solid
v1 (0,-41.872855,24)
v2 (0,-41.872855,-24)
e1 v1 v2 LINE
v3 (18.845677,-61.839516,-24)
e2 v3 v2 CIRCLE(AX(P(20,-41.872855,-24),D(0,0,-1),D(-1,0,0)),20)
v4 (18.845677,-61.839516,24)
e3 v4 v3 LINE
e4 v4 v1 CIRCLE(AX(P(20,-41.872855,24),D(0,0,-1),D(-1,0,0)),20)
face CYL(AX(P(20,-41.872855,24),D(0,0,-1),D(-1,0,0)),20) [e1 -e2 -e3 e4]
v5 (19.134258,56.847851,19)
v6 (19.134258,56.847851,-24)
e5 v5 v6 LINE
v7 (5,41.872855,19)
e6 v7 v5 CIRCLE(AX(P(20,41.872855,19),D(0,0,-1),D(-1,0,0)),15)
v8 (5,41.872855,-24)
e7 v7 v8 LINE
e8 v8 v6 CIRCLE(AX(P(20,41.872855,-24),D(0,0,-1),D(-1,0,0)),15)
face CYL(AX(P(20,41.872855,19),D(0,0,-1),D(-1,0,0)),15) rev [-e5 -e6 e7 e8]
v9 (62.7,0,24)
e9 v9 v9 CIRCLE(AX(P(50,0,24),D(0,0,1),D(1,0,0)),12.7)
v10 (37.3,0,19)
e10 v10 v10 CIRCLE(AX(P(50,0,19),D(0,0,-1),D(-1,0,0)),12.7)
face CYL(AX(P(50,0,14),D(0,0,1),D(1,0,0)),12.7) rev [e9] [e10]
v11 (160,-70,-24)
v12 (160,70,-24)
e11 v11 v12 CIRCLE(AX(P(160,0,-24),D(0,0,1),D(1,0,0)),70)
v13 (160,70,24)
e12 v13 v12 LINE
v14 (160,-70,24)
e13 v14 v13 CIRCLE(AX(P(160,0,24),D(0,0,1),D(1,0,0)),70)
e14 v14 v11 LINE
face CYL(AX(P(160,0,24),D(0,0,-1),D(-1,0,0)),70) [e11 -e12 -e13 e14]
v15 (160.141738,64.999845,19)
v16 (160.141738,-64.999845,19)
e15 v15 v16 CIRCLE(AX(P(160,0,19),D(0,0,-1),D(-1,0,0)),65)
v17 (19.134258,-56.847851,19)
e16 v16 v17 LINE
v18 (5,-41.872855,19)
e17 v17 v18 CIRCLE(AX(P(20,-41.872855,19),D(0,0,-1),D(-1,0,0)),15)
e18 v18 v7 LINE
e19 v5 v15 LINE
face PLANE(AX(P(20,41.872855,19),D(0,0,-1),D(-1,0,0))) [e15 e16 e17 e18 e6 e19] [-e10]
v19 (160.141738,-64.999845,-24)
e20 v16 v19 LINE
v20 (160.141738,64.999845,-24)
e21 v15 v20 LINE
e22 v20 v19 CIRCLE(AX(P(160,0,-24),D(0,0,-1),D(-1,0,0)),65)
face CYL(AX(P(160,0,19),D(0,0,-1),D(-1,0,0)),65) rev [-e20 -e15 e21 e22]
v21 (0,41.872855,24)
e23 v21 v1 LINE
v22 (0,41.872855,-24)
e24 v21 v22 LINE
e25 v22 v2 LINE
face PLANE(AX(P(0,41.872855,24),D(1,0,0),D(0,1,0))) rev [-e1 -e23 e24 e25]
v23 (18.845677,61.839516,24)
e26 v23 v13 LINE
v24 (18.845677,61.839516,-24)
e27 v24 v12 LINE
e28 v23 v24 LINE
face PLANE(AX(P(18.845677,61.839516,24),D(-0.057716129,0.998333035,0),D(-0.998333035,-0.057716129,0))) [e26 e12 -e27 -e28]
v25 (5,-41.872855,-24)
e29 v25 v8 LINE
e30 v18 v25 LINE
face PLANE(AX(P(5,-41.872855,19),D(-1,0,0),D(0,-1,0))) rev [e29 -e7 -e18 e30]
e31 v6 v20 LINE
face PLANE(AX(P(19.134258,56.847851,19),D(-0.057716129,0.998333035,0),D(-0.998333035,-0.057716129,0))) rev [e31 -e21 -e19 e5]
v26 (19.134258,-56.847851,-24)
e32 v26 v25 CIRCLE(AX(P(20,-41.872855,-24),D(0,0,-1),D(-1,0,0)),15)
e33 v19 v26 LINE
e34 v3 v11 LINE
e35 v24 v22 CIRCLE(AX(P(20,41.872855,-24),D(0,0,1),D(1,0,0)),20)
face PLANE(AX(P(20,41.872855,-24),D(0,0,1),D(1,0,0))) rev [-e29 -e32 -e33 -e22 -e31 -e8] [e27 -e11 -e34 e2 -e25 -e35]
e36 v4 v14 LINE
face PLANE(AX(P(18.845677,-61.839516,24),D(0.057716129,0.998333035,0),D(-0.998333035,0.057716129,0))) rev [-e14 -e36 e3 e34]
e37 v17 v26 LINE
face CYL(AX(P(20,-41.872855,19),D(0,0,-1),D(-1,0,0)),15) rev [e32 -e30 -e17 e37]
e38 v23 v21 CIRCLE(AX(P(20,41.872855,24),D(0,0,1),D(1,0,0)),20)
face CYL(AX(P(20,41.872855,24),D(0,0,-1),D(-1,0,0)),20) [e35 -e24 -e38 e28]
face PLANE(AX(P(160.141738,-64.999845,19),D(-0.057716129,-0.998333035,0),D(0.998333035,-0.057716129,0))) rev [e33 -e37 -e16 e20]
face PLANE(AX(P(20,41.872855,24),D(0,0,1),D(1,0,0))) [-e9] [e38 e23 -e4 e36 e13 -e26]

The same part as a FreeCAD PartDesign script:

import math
import FreeCAD as App
import Part
import Sketcher
from FreeCAD import Vector

doc = App.newDocument("Part")
params = doc.addObject("Spreadsheet::Sheet", "Params")
for row, (alias, value) in enumerate([
    ("sketch1_radius", "20 mm"),
    ("sketch1_radius2", "70 mm"),
    ("pad1_length", "48 mm"),
    ("sketch2_radius", "65 mm"),
    ("sketch2_radius2", "15 mm"),
    ("pocket1_length", "43 mm"),
    ("sketch3_diameter", "25.4 mm"),
    ("pocket2_length", "10 mm"),
], start=1):
    params.set(f"A{row}", alias)
    params.set(f"B{row}", "=" + value)
    params.setAlias(f"B{row}", alias)

body = doc.addObject("PartDesign::Body", "Body")

# Sketch on XY plane
sketch1 = doc.addObject("Sketcher::SketchObject", "Sketch")
body.addObject(sketch1)
sketch1.AttachmentSupport = (doc.XY_Plane, [""])
sketch1.MapMode = "FlatFace"
sketch1.addGeometry([
    Part.LineSegment(Vector(0, 42, 0), Vector(0, -42, 0)),  # 0
    Part.ArcOfCircle(Part.Circle(Vector(20, -42, 0), Vector(0, 0, 1), 20), math.radians(180), math.radians(267)),  # 1
    Part.LineSegment(Vector(19, -62, 0), Vector(160, -70, 0)),  # 2
    Part.ArcOfCircle(Part.Circle(Vector(160, 0, 0), Vector(0, 0, 1), 70), math.radians(-90), math.radians(90)),  # 3
    Part.LineSegment(Vector(160, 70, 0), Vector(19, 62, 0)),  # 4
    Part.ArcOfCircle(Part.Circle(Vector(20, 42, 0), Vector(0, 0, 1), 20), math.radians(93), math.radians(180)),  # 5
], False)
sketch1.addConstraint([
    Sketcher.Constraint("Tangent", 0, 2, 1, 1),
    Sketcher.Constraint("Tangent", 1, 2, 2, 1),
    Sketcher.Constraint("Coincident", 2, 2, 3, 1),
    Sketcher.Constraint("Coincident", 3, 2, 4, 1),
    Sketcher.Constraint("Tangent", 4, 2, 5, 1),
    Sketcher.Constraint("Tangent", 5, 2, 0, 1),
    Sketcher.Constraint("Vertical", 0),
    Sketcher.Constraint("Equal", 1, 5),
    Sketcher.Constraint("Symmetric", 0, 2, 5, 2, -1, 1),
    Sketcher.Constraint("Symmetric", 2, 2, 3, 2, -1),
    Sketcher.Constraint("Vertical", 3, 3, 2, 2),
    Sketcher.Constraint("Radius", 1, 20.0),
    Sketcher.Constraint("Radius", 3, 70.0),
    Sketcher.Constraint("DistanceX", -1, 1, 3, 3, 160.0),
    Sketcher.Constraint("DistanceY", 0, 2, 0, 1, 83.74571),
])
sketch1.setExpression("Constraints[11]", "Params.sketch1_radius")
sketch1.setExpression("Constraints[12]", "Params.sketch1_radius2")
pad1 = doc.addObject("PartDesign::Pad", "Pad")
body.addObject(pad1)
pad1.Profile = sketch1
pad1.setExpression("Length", "Params.pad1_length")
pad1.Midplane = True

# Sketch on XY plane
sketch2 = doc.addObject("Sketcher::SketchObject", "Sketch001")
body.addObject(sketch2)
sketch2.AttachmentSupport = (doc.XY_Plane, [""])
sketch2.MapMode = "FlatFace"
sketch2.AttachmentOffset = App.Placement(Vector(0, 0, -24), App.Rotation())
sketch2.addGeometry([
    Part.LineSegment(Vector(19, 57, 0), Vector(160, 65, 0)),  # 0
    Part.ArcOfCircle(Part.Circle(Vector(160, 0, 0), Vector(0, 0, 1), 65), math.radians(-90), math.radians(90)),  # 1
    Part.LineSegment(Vector(160, -65, 0), Vector(19, -57, 0)),  # 2
    Part.ArcOfCircle(Part.Circle(Vector(20, -42, 0), Vector(0, 0, 1), 15), math.radians(180), math.radians(267)),  # 3
    Part.LineSegment(Vector(5, -42, 0), Vector(5, 42, 0)),  # 4
    Part.ArcOfCircle(Part.Circle(Vector(20, 42, 0), Vector(0, 0, 1), 15), math.radians(93), math.radians(180)),  # 5
], False)
sketch2.addConstraint([
    Sketcher.Constraint("Coincident", 0, 2, 1, 2),
    Sketcher.Constraint("Coincident", 1, 1, 2, 1),
    Sketcher.Constraint("Tangent", 2, 2, 3, 2),
    Sketcher.Constraint("Tangent", 3, 1, 4, 1),
    Sketcher.Constraint("Tangent", 4, 2, 5, 2),
    Sketcher.Constraint("Tangent", 5, 1, 0, 1),
    Sketcher.Constraint("Vertical", 4),
    Sketcher.Constraint("Equal", 3, 5),
    Sketcher.Constraint("Symmetric", 0, 2, 1, 1, -1),
    Sketcher.Constraint("Vertical", 2, 2, 5, 1),
    Sketcher.Constraint("Radius", 1, 65.0),
    Sketcher.Constraint("Radius", 3, 15.0),
    Sketcher.Constraint("DistanceX", -1, 1, 1, 3, 160.0),
    Sketcher.Constraint("DistanceX", -1, 1, 3, 3, 20.0),
    Sketcher.Constraint("DistanceY", 4, 1, 4, 2, 83.74571),
    Sketcher.Constraint("DistanceX", -1, 1, 2, 2, 19.134258),
])
sketch2.setExpression("Constraints[10]", "Params.sketch2_radius")
sketch2.setExpression("Constraints[11]", "Params.sketch2_radius2")
pocket1 = doc.addObject("PartDesign::Pocket", "Pocket")
body.addObject(pocket1)
pocket1.Profile = sketch2
pocket1.setExpression("Length", "Params.pocket1_length")
pocket1.Reversed = True

# Sketch on XY plane
sketch3 = doc.addObject("Sketcher::SketchObject", "Sketch002")
body.addObject(sketch3)
sketch3.AttachmentSupport = (doc.XY_Plane, [""])
sketch3.MapMode = "FlatFace"
sketch3.AttachmentOffset = App.Placement(Vector(0, 0, 24), App.Rotation())
sketch3.addGeometry(Part.Circle(Vector(50, 0, 0), Vector(0, 0, 1), 13), False)
sketch3.addConstraint([
    Sketcher.Constraint("PointOnObject", 0, 3, -1),
    Sketcher.Constraint("Diameter", 0, 25.4),
    Sketcher.Constraint("DistanceX", -1, 1, 0, 3, 50.0),
])
sketch3.setExpression("Constraints[1]", "Params.sketch3_diameter")
pocket2 = doc.addObject("PartDesign::Pocket", "Pocket001")
body.addObject(pocket2)
pocket2.Profile = sketch3
pocket2.setExpression("Length", "Params.pocket2_length")

doc.recompute()
